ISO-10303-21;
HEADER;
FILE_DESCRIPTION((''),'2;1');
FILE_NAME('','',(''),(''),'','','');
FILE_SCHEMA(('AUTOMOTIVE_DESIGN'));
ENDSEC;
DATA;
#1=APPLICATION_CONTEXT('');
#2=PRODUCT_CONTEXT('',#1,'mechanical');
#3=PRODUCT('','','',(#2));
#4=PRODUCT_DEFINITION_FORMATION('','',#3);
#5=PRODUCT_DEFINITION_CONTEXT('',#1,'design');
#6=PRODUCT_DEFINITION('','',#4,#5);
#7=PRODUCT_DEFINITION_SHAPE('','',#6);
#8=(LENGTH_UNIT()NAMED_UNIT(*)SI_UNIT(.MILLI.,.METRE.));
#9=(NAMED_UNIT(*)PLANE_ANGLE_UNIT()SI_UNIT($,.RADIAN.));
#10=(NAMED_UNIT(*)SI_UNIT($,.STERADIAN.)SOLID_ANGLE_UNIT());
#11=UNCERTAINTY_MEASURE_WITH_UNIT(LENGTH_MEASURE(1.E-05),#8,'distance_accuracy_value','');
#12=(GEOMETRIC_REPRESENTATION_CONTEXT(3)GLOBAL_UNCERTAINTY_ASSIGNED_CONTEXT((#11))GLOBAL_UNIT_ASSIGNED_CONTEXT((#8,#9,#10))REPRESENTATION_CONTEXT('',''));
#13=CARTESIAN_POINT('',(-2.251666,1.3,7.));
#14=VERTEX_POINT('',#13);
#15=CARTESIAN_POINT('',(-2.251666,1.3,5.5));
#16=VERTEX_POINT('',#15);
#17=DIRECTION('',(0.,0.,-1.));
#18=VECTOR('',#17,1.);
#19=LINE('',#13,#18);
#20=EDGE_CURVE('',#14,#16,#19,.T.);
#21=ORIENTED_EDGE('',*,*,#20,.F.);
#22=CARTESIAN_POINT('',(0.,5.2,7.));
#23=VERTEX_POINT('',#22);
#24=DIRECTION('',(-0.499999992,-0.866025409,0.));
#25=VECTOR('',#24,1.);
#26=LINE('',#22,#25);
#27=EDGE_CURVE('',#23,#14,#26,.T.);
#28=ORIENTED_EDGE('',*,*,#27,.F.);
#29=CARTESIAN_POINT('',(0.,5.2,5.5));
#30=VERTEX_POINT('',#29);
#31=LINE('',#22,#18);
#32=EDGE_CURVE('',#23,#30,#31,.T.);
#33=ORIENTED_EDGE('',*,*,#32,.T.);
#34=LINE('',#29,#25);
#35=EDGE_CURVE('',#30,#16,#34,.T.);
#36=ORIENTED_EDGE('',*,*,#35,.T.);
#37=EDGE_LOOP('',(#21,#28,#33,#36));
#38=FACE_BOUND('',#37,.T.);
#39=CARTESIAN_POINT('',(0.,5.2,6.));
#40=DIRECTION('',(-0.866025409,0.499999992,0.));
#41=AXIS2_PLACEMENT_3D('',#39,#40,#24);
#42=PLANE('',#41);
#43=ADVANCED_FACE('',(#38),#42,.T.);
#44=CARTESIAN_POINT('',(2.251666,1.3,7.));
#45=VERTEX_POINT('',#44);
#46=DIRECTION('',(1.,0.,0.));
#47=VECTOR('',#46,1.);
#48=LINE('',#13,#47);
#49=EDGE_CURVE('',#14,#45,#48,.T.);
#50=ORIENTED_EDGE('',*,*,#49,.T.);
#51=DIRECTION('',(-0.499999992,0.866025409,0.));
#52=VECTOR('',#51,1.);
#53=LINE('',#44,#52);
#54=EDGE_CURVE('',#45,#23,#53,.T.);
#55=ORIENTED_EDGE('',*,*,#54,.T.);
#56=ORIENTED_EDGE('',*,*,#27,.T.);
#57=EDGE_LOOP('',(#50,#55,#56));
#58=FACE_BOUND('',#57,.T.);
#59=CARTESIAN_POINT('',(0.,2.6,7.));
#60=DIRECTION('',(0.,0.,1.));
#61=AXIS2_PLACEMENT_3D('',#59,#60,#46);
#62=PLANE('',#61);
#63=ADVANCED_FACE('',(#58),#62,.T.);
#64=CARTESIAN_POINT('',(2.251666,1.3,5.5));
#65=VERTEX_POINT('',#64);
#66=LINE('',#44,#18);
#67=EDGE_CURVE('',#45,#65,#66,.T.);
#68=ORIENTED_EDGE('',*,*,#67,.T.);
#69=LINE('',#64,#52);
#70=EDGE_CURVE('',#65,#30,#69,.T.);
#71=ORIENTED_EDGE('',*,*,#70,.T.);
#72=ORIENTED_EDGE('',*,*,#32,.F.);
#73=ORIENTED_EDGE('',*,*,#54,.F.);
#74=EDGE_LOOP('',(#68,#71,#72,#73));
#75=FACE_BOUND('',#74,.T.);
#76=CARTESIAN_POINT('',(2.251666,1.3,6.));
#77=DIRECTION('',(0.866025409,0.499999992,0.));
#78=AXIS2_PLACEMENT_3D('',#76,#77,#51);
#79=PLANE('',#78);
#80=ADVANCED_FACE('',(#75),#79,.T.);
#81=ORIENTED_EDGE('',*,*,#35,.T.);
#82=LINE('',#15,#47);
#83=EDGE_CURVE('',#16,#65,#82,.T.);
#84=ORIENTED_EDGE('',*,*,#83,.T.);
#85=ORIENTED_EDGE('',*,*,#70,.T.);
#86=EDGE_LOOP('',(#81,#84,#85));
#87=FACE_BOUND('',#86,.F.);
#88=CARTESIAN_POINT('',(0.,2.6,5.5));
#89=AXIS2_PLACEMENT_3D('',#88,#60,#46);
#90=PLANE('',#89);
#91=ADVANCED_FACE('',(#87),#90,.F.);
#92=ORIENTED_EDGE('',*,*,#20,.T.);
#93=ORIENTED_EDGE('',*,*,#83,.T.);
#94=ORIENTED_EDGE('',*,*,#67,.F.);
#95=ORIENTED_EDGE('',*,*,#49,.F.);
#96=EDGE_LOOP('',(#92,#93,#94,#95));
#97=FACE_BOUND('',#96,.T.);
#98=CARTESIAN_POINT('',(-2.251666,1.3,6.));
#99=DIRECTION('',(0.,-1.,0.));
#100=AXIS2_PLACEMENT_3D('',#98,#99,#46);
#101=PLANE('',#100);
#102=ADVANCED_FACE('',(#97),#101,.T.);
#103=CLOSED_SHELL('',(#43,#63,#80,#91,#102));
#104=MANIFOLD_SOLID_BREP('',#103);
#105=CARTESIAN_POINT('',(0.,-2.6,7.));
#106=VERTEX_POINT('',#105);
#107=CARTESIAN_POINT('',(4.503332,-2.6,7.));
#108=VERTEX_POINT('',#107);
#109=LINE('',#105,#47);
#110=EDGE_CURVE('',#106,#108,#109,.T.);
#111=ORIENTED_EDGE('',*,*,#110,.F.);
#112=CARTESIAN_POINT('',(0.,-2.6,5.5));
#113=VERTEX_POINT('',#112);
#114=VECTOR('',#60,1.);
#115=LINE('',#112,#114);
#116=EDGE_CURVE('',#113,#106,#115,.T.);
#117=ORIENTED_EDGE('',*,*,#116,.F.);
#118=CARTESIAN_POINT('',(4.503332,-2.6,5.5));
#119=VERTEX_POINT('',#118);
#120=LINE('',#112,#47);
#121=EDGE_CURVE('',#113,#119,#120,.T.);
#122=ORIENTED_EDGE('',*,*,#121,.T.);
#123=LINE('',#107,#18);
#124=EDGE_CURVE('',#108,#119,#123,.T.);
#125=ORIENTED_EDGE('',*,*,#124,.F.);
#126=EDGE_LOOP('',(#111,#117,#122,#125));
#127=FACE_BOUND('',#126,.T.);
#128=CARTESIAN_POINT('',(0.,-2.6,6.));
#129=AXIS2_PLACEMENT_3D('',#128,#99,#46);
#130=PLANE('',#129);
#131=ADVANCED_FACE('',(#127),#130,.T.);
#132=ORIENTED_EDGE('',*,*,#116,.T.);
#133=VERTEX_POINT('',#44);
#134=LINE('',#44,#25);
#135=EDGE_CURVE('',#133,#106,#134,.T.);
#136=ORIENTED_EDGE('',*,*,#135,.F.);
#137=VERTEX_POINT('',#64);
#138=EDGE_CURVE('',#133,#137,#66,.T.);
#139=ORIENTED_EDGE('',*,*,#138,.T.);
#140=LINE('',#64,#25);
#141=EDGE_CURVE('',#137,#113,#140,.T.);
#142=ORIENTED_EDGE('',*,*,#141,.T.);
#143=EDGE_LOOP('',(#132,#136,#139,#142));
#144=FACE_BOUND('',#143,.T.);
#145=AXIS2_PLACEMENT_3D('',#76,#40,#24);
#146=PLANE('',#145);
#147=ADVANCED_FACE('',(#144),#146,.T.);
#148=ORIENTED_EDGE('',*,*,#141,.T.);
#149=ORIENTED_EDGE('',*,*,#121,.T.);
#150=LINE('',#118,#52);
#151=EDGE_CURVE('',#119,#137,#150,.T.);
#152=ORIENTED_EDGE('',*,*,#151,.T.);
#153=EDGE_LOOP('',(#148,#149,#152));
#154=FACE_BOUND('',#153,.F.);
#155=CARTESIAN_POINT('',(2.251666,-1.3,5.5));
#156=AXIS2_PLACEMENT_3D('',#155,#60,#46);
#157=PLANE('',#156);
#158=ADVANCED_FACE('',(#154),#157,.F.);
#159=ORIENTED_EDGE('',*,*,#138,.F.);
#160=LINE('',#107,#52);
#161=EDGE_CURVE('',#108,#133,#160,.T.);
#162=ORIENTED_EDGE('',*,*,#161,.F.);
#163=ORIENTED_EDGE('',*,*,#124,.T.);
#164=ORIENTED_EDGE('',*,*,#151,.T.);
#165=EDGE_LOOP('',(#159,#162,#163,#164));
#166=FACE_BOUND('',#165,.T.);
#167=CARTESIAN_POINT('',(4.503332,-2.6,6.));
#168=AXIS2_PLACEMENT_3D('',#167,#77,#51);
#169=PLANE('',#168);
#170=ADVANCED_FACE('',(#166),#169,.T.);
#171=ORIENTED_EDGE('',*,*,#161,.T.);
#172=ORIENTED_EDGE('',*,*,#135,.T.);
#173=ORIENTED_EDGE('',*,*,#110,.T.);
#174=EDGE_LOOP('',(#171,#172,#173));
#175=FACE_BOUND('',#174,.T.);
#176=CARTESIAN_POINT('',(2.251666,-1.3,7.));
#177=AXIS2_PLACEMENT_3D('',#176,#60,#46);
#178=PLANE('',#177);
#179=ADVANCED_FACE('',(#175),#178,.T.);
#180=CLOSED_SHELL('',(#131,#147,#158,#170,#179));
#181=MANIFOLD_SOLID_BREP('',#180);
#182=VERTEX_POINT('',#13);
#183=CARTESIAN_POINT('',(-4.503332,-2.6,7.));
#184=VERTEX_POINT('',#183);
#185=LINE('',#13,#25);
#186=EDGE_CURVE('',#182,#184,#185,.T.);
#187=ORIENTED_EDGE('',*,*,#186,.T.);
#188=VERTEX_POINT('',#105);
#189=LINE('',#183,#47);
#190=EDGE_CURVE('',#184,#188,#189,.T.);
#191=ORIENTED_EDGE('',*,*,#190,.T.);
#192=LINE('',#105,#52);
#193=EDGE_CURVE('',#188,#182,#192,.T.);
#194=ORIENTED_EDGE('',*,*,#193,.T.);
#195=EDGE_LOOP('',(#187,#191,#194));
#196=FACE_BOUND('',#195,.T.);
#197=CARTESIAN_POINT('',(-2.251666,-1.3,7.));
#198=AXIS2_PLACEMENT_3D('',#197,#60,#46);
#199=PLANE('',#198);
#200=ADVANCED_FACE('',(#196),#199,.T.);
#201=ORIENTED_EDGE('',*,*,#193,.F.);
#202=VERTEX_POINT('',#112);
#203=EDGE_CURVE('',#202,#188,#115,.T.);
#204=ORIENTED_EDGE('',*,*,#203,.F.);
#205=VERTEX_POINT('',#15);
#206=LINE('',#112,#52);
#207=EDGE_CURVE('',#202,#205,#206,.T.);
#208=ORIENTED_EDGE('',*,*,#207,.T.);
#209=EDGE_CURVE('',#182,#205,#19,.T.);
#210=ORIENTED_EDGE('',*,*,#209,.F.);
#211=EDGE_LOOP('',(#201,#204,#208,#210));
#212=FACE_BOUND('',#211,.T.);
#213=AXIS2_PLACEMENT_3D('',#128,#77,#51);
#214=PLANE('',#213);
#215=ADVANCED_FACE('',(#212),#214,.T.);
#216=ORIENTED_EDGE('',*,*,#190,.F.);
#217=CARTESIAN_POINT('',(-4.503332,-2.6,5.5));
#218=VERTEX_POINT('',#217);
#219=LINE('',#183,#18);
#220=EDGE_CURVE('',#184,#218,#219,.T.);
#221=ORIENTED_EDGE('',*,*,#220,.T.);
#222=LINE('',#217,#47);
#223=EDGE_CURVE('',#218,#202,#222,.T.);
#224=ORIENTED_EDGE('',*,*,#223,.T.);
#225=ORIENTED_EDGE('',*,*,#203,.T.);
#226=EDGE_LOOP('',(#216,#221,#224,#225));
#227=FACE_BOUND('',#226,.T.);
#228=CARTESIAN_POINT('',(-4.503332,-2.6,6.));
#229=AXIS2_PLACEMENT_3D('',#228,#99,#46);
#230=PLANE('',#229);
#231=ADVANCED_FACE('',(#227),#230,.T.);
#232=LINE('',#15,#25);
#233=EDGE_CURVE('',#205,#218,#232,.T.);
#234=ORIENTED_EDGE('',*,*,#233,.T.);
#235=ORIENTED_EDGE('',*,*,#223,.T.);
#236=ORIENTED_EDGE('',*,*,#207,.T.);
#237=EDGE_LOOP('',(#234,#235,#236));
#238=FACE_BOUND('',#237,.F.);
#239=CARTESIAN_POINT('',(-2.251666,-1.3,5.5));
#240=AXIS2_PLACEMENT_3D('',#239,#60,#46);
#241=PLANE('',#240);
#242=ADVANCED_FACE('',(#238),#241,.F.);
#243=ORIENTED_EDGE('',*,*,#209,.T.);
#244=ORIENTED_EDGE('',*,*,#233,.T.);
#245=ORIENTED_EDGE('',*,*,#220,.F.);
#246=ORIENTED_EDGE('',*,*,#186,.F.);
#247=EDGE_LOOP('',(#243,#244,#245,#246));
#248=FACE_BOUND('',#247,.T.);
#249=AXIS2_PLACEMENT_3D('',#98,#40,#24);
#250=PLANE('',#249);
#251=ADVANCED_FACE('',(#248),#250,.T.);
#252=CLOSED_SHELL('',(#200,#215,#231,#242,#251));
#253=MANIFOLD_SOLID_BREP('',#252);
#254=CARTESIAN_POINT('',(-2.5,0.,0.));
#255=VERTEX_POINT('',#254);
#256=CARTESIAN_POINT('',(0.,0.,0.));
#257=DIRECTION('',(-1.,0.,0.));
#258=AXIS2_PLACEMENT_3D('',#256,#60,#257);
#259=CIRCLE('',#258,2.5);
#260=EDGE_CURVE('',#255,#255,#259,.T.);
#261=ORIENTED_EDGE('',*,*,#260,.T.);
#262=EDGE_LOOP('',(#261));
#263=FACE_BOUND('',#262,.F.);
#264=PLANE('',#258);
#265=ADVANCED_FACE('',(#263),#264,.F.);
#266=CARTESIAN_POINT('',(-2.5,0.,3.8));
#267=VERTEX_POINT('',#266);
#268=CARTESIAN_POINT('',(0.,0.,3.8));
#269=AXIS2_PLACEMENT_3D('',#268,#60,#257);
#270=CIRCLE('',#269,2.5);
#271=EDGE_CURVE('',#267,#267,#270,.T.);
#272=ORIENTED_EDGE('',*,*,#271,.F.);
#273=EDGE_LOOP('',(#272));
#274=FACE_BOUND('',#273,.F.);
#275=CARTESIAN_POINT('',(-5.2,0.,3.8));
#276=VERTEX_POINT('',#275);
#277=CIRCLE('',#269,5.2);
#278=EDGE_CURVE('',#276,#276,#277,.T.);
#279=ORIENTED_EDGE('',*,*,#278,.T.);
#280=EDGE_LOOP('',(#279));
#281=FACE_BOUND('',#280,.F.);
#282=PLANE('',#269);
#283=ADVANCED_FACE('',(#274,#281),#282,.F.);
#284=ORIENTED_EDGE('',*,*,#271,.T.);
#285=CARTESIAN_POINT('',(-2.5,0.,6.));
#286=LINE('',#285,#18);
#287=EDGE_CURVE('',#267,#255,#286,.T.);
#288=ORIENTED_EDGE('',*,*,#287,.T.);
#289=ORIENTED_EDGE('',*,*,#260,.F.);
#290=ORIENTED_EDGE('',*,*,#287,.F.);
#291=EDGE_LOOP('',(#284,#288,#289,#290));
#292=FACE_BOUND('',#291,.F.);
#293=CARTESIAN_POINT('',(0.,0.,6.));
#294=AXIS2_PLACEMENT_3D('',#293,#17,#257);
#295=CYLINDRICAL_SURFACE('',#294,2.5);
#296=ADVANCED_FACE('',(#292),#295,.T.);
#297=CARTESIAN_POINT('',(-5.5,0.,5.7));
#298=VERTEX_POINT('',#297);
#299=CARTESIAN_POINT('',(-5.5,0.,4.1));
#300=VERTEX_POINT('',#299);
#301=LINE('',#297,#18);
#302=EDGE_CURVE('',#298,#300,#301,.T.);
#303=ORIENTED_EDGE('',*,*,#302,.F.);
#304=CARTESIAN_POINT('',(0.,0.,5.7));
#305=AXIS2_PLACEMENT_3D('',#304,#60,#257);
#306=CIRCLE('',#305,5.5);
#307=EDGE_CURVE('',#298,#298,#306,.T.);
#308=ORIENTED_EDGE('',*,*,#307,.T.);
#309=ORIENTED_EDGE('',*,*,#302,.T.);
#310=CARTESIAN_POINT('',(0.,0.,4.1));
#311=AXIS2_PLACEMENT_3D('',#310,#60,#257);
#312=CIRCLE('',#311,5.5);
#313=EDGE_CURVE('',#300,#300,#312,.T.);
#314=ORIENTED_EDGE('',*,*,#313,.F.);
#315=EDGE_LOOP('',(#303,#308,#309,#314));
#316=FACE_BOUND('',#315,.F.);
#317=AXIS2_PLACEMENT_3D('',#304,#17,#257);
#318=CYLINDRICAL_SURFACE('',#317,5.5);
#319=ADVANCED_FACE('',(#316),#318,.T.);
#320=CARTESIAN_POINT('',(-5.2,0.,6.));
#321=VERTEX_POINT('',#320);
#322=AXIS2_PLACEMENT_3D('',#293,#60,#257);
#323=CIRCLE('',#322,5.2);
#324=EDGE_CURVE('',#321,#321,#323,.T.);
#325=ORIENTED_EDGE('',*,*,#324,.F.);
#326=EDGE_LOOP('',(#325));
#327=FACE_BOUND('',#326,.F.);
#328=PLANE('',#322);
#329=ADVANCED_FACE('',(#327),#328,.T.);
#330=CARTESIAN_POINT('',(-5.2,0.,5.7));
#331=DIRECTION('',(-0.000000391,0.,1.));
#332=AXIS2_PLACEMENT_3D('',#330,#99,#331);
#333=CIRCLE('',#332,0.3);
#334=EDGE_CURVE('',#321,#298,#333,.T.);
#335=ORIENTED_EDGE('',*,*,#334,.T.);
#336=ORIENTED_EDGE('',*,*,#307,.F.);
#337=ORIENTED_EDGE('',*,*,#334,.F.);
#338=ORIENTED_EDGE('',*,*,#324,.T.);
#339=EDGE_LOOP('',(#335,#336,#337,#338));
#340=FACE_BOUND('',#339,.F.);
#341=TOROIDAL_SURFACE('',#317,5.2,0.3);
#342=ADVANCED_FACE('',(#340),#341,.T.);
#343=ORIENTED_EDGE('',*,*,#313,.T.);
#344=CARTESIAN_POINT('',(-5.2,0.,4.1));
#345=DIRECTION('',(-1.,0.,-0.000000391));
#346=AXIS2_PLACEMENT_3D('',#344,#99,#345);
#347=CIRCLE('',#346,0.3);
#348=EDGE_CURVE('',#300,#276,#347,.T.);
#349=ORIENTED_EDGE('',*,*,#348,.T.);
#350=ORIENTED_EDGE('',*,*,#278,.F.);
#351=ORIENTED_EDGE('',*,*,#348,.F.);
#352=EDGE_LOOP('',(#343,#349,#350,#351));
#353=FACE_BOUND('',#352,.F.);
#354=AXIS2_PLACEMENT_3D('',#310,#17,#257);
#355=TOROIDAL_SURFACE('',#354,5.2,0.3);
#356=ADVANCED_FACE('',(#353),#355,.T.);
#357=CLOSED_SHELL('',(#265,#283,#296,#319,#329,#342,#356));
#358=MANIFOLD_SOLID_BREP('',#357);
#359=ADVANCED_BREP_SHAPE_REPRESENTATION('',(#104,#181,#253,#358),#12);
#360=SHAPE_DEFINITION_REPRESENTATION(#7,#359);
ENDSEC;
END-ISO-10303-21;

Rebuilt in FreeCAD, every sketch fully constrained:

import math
import FreeCAD as App
import Part
import Sketcher

V = App.Vector
Q = App.Units.Quantity

doc = App.newDocument("Part")
body = doc.addObject("PartDesign::Body", "Body")

sketch1 = doc.addObject("Sketcher::SketchObject", "Sketch")
body.addObject(sketch1)
sketch1.AttachmentSupport = (doc.XZ_Plane, [""])
sketch1.MapMode = "FlatFace"
sketch1.addGeometry([
    Part.LineSegment(V(-2.5, 0, 0), V(0, 0, 0)),
    Part.LineSegment(V(0, 0, 0), V(0, 6, 0)),
    Part.LineSegment(V(0, 6, 0), V(-5.2, 6, 0)),
    Part.ArcOfCircle(Part.Circle(V(-5.2, 5.7, 0), V(0, 0, 1), 0.3), math.radians(90), math.radians(180)),
    Part.LineSegment(V(-5.5, 5.7, 0), V(-5.5, 4.1, 0)),
    Part.ArcOfCircle(Part.Circle(V(-5.2, 4.1, 0), V(0, 0, 1), 0.3), math.radians(-180), math.radians(-90)),
    Part.LineSegment(V(-5.2, 3.8, 0), V(-2.5, 3.8, 0)),
    Part.LineSegment(V(-2.5, 3.8, 0), V(-2.5, 0, 0)),
], False)
sketch1.addConstraint([
    Sketcher.Constraint("Coincident", 0, 2, 1, 1),
    Sketcher.Constraint("Coincident", 1, 2, 2, 1),
    Sketcher.Constraint("Tangent", 2, 2, 3, 1),
    Sketcher.Constraint("Tangent", 3, 2, 4, 1),
    Sketcher.Constraint("Tangent", 4, 2, 5, 1),
    Sketcher.Constraint("Tangent", 5, 2, 6, 1),
    Sketcher.Constraint("Coincident", 6, 2, 7, 1),
    Sketcher.Constraint("Coincident", 7, 2, 0, 1),
    Sketcher.Constraint("Horizontal", 0),
    Sketcher.Constraint("Vertical", 1),
    Sketcher.Constraint("Horizontal", 2),
    Sketcher.Constraint("Vertical", 4),
    Sketcher.Constraint("Horizontal", 6),
    Sketcher.Constraint("Vertical", 7),
    Sketcher.Constraint("Coincident", 0, 2, -1, 1),
    Sketcher.Constraint("Equal", 3, 5),
    Sketcher.Constraint("Radius", 3, 0.3),
    Sketcher.Constraint("DistanceY", 1, 1, 1, 2, 6.0),
    Sketcher.Constraint("DistanceX", 0, 1, 0, 2, 2.5),
    Sketcher.Constraint("DistanceX", 2, 2, 2, 1, 5.2),
    Sketcher.Constraint("DistanceY", 4, 2, 4, 1, 1.6),
])
revolution = doc.addObject("PartDesign::Revolution", "Revolution")
body.addObject(revolution)
revolution.Profile = sketch1
revolution.ReferenceAxis = (sketch1, ["V_Axis"])
revolution.Angle = 360
body2 = doc.addObject("PartDesign::Body", "Body001")
body2.AllowCompound = True

sketch2 = doc.addObject("Sketcher::SketchObject", "Sketch001")
body2.addObject(sketch2)
sketch2.AttachmentSupport = (doc.getObject("XY_Plane001"), [""])
sketch2.MapMode = "FlatFace"
sketch2.AttachmentOffset = App.Placement(V(0, 0, 6), App.Rotation())
sketch2.addGeometry([
    Part.LineSegment(V(-4.5, -2.6, 0), V(0, -2.6, 0)),
    Part.LineSegment(V(0, -2.6, 0), V(-2.3, 1.3, 0)),
    Part.LineSegment(V(-2.3, 1.3, 0), V(-4.5, -2.6, 0)),
    Part.LineSegment(V(2.3, 1.3, 0), V(0, -2.6, 0)),
    Part.LineSegment(V(0, -2.6, 0), V(4.5, -2.6, 0)),
    Part.LineSegment(V(4.5, -2.6, 0), V(2.3, 1.3, 0)),
    Part.LineSegment(V(0, 5.2, 0), V(-2.3, 1.3, 0)),
    Part.LineSegment(V(-2.3, 1.3, 0), V(2.3, 1.3, 0)),
    Part.LineSegment(V(2.3, 1.3, 0), V(0, 5.2, 0)),
], False)
sketch2.addConstraint([
    Sketcher.Constraint("Coincident", 0, 2, 1, 1),
    Sketcher.Constraint("Coincident", 1, 2, 2, 1),
    Sketcher.Constraint("Coincident", 2, 2, 0, 1),
    Sketcher.Constraint("Coincident", 3, 2, 4, 1),
    Sketcher.Constraint("Coincident", 4, 2, 5, 1),
    Sketcher.Constraint("Coincident", 5, 2, 3, 1),
    Sketcher.Constraint("Coincident", 6, 2, 7, 1),
    Sketcher.Constraint("Coincident", 7, 2, 8, 1),
    Sketcher.Constraint("Coincident", 8, 2, 6, 1),
    Sketcher.Constraint("Horizontal", 0),
    Sketcher.Constraint("Horizontal", 4),
    Sketcher.Constraint("Horizontal", 7),
    Sketcher.Constraint("Coincident", 3, 2, 0, 2),
    Sketcher.Constraint("Coincident", 6, 2, 1, 2),
    Sketcher.Constraint("Coincident", 7, 2, 5, 2),
    Sketcher.Constraint("PointOnObject", 0, 2, -2),
    Sketcher.Constraint("PointOnObject", 8, 2, -2),
    Sketcher.Constraint("Parallel", 2, 3),
    Sketcher.Constraint("Parallel", 1, 5),
    Sketcher.Constraint("Parallel", 3, 6),
    Sketcher.Constraint("Parallel", 5, 8),
    Sketcher.Constraint("Angle", 1, Q("119.999999 deg")),
    Sketcher.Constraint("DistanceY", 0, 2, -1, 1, 2.6),
    Sketcher.Constraint("DistanceY", -1, 1, 1, 2, 1.3),
])
pad1 = doc.addObject("PartDesign::Pad", "Pad")
body2.addObject(pad1)
pad1.Profile = sketch2
pad1.Type = "TwoLengths"
pad1.Length = 1
pad1.Length2 = 0.5

doc.recompute()
